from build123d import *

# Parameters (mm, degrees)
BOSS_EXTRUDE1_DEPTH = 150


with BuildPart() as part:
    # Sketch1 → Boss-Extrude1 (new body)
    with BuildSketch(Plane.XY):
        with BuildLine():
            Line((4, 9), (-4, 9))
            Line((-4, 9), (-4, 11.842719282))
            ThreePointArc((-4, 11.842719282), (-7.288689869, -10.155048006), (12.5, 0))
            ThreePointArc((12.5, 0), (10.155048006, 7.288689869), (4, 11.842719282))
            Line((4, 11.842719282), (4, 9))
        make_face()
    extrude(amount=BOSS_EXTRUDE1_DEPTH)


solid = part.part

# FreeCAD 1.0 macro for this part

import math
import FreeCAD as App
import Part
import Sketcher

V = App.Vector

doc = App.newDocument("Part")
params = doc.addObject("Spreadsheet::Sheet", "Params")
for row, (alias, value) in enumerate([
    ("sketch1_radius", "12.5 mm"),
    ("sketch1_width", "8 mm"),
    ("pad1_length", "150 mm"),
], start=1):
    params.set(f"A{row}", alias)
    params.set(f"B{row}", "=" + value)
    params.setAlias(f"B{row}", alias)

body = doc.addObject("PartDesign::Body", "Body")

# Sketch on XY plane
sketch1 = doc.addObject("Sketcher::SketchObject", "Sketch")
body.addObject(sketch1)
sketch1.AttachmentSupport = (doc.XY_Plane, [""])
sketch1.MapMode = "FlatFace"
sketch1.addGeometry([
    Part.LineSegment(V(4, 9, 0), V(-4, 9, 0)),  # 0
    Part.LineSegment(V(-4, 9, 0), V(-4, 11.8, 0)),  # 1
    Part.ArcOfCircle(Part.Circle(V(0, 0, 0), V(0, 0, 1), 12.5), math.radians(109), math.radians(360)),  # 2
    Part.ArcOfCircle(Part.Circle(V(0, 0, 0), V(0, 0, 1), 12.5), math.radians(0), math.radians(71)),  # 3
    Part.LineSegment(V(4, 11.8, 0), V(4, 9, 0)),  # 4
], False)
sketch1.addConstraint([
    Sketcher.Constraint("Coincident", 0, 2, 1, 1),
    Sketcher.Constraint("Coincident", 1, 2, 2, 1),
    Sketcher.Constraint("Tangent", 2, 2, 3, 1),
    Sketcher.Constraint("Coincident", 3, 2, 4, 1),
    Sketcher.Constraint("Coincident", 4, 2, 0, 1),
    Sketcher.Constraint("Horizontal", 0),
    Sketcher.Constraint("Vertical", 1),
    Sketcher.Constraint("Vertical", 4),
    Sketcher.Constraint("Coincident", 2, 3, -1, 1),
    Sketcher.Constraint("Equal", 2, 3),
    Sketcher.Constraint("PointOnObject", 2, 2, -1),
    Sketcher.Constraint("Horizontal", 1, 2, 3, 2),
    Sketcher.Constraint("Radius", 2, 12.5),
    Sketcher.Constraint("DistanceX", 0, 2, 0, 1, 8.0),
    Sketcher.Constraint("DistanceY", -1, 1, 0, 2, 9.0),
])
sketch1.setExpression("Constraints[12]", "Params.sketch1_radius")
sketch1.setExpression("Constraints[13]", "Params.sketch1_width")
pad1 = doc.addObject("PartDesign::Pad", "Pad")
body.addObject(pad1)
pad1.Profile = sketch1
pad1.setExpression("Length", "Params.pad1_length")

doc.recompute()
